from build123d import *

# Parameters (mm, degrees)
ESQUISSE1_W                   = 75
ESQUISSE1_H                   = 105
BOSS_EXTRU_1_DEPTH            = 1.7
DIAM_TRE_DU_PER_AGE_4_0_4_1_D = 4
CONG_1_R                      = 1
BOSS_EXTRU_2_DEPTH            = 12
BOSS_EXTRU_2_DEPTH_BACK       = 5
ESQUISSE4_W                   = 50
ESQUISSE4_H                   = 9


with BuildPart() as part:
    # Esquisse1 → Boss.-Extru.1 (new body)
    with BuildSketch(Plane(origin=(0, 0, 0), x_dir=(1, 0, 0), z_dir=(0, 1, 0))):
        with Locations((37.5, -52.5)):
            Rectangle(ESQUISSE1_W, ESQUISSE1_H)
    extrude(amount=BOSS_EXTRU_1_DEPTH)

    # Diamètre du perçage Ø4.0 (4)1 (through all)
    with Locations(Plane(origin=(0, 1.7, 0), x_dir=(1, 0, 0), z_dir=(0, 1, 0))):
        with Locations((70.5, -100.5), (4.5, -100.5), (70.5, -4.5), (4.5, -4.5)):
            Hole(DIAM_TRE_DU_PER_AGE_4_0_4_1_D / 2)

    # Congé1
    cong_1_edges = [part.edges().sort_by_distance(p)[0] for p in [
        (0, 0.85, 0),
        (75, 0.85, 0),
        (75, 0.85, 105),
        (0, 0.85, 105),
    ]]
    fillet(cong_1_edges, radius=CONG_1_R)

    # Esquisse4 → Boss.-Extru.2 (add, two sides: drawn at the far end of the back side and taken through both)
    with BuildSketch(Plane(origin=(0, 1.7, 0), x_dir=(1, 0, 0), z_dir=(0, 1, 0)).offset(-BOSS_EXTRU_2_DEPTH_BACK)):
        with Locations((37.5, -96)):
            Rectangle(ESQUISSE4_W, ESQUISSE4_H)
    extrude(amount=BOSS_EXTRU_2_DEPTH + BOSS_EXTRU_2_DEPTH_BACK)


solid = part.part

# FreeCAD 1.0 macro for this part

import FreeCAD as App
import Part
import Sketcher


def edges_at(feature, points):
    """Names of the edges that pass closest to the given points."""
    edges = feature.Shape.Edges
    near = lambda p: min(range(len(edges)), key=lambda i: edges[i].distToShape(Part.Vertex(*p))[0])
    return sorted({f"Edge{near(p) + 1}" for p in points})


def add_polygon(sketch, points):
    """Adds a closed chain of lines whose ends are joined by coincident constraints."""
    first, n = sketch.GeometryCount, len(points)
    for a, b in zip(points, points[1:] + points[:1]):
        sketch.addGeometry(Part.LineSegment(App.Vector(*a, 0), App.Vector(*b, 0)), False)
    for i in range(n):
        sketch.addConstraint(Sketcher.Constraint("Coincident", first + i, 2, first + (i + 1) % n, 1))

doc = App.newDocument("Part")
body = doc.addObject("PartDesign::Body", "Body")

# Sketch on XZ plane
sketch1 = body.newObject("Sketcher::SketchObject", "Sketch")
sketch1.AttachmentSupport = (doc.getObject("XZ_Plane"), [""])
sketch1.MapMode = "FlatFace"
add_polygon(sketch1, [(0, 0), (0, 105), (75, 105), (75, 0)])  # lines 0-3
sketch1.addConstraint([
    Sketcher.Constraint("Vertical", 0),
    Sketcher.Constraint("Horizontal", 1),
    Sketcher.Constraint("Vertical", 2),
    Sketcher.Constraint("Horizontal", 3),
    Sketcher.Constraint("Coincident", 3, 2, -1, 1),
    Sketcher.Constraint("DistanceX", 1, 1, 1, 2, 75.0),
    Sketcher.Constraint("DistanceY", 0, 1, 0, 2, 105.0),
])
pad1 = body.newObject("PartDesign::Pad", "Pad")
pad1.Profile = sketch1
pad1.Length = 1.7
pad1.Reversed = True

# Sketch on XZ plane
sketch2 = body.newObject("Sketcher::SketchObject", "Sketch001")
sketch2.AttachmentSupport = (doc.getObject("XZ_Plane"), [""])
sketch2.MapMode = "FlatFace"
sketch2.AttachmentOffset = App.Placement(App.Vector(0, 0, -1.7), App.Rotation())
sketch2.addGeometry([
    Part.Circle(App.Vector(70.5, 100.5, 0), App.Vector(0, 0, 1), 2),
    Part.Circle(App.Vector(4.5, 100.5, 0), App.Vector(0, 0, 1), 2),
    Part.Circle(App.Vector(70.5, 4.5, 0), App.Vector(0, 0, 1), 2),
    Part.Circle(App.Vector(4.5, 4.5, 0), App.Vector(0, 0, 1), 2),
], False)
sketch2.addConstraint([
    Sketcher.Constraint("Equal", 0, 1),
    Sketcher.Constraint("Equal", 1, 2),
    Sketcher.Constraint("Equal", 2, 3),
    Sketcher.Constraint("Horizontal", 0, 3, 1, 3),
    Sketcher.Constraint("Horizontal", 2, 3, 3, 3),
    Sketcher.Constraint("Vertical", 0, 3, 2, 3),
    Sketcher.Constraint("Vertical", 1, 3, 3, 3),
    Sketcher.Constraint("Diameter", 0, 4.0),
    Sketcher.Constraint("DistanceX", 1, 3, 0, 3, 66.0),
    Sketcher.Constraint("DistanceY", 2, 3, 0, 3, 96.0),
    Sketcher.Constraint("DistanceX", -1, 1, 0, 3, 70.5),
    Sketcher.Constraint("DistanceY", -1, 1, 0, 3, 100.5),
])
doc.recompute()
hole = body.newObject("PartDesign::Hole", "Hole")
hole.Profile = sketch2
hole.ThreadType = "None"
hole.Diameter = 4
hole.DepthType = "ThroughAll"
hole.Reversed = True
doc.recompute()

fillet = body.newObject("PartDesign::Fillet", "Fillet")
fillet.Base = (hole, edges_at(hole, [
    (0, 0.85, 0),
    (75, 0.85, 0),
    (75, 0.85, 105),
    (0, 0.85, 105),
]))
fillet.Radius = 1

# Sketch on XZ plane
sketch3 = body.newObject("Sketcher::SketchObject", "Sketch002")
sketch3.AttachmentSupport = (doc.getObject("XZ_Plane"), [""])
sketch3.MapMode = "FlatFace"
sketch3.AttachmentOffset = App.Placement(App.Vector(0, 0, -1.7), App.Rotation())
add_polygon(sketch3, [(12, 92), (12, 100), (62, 100), (62, 92)])  # lines 0-3
sketch3.addConstraint([
    Sketcher.Constraint("Vertical", 0),
    Sketcher.Constraint("Horizontal", 1),
    Sketcher.Constraint("Vertical", 2),
    Sketcher.Constraint("Horizontal", 3),
    Sketcher.Constraint("DistanceX", 1, 1, 1, 2, 50.0),
    Sketcher.Constraint("DistanceY", 0, 1, 0, 2, 9.0),
    Sketcher.Constraint("DistanceX", -1, 1, 0, 2, 12.5),
    Sketcher.Constraint("DistanceY", -1, 1, 0, 2, 100.5),
])
pad2 = body.newObject("PartDesign::Pad", "Pad001")
pad2.Profile = sketch3
pad2.Type = "TwoLengths"
pad2.Length = 12
pad2.Length2 = 5
pad2.Reversed = True

doc.recompute()
